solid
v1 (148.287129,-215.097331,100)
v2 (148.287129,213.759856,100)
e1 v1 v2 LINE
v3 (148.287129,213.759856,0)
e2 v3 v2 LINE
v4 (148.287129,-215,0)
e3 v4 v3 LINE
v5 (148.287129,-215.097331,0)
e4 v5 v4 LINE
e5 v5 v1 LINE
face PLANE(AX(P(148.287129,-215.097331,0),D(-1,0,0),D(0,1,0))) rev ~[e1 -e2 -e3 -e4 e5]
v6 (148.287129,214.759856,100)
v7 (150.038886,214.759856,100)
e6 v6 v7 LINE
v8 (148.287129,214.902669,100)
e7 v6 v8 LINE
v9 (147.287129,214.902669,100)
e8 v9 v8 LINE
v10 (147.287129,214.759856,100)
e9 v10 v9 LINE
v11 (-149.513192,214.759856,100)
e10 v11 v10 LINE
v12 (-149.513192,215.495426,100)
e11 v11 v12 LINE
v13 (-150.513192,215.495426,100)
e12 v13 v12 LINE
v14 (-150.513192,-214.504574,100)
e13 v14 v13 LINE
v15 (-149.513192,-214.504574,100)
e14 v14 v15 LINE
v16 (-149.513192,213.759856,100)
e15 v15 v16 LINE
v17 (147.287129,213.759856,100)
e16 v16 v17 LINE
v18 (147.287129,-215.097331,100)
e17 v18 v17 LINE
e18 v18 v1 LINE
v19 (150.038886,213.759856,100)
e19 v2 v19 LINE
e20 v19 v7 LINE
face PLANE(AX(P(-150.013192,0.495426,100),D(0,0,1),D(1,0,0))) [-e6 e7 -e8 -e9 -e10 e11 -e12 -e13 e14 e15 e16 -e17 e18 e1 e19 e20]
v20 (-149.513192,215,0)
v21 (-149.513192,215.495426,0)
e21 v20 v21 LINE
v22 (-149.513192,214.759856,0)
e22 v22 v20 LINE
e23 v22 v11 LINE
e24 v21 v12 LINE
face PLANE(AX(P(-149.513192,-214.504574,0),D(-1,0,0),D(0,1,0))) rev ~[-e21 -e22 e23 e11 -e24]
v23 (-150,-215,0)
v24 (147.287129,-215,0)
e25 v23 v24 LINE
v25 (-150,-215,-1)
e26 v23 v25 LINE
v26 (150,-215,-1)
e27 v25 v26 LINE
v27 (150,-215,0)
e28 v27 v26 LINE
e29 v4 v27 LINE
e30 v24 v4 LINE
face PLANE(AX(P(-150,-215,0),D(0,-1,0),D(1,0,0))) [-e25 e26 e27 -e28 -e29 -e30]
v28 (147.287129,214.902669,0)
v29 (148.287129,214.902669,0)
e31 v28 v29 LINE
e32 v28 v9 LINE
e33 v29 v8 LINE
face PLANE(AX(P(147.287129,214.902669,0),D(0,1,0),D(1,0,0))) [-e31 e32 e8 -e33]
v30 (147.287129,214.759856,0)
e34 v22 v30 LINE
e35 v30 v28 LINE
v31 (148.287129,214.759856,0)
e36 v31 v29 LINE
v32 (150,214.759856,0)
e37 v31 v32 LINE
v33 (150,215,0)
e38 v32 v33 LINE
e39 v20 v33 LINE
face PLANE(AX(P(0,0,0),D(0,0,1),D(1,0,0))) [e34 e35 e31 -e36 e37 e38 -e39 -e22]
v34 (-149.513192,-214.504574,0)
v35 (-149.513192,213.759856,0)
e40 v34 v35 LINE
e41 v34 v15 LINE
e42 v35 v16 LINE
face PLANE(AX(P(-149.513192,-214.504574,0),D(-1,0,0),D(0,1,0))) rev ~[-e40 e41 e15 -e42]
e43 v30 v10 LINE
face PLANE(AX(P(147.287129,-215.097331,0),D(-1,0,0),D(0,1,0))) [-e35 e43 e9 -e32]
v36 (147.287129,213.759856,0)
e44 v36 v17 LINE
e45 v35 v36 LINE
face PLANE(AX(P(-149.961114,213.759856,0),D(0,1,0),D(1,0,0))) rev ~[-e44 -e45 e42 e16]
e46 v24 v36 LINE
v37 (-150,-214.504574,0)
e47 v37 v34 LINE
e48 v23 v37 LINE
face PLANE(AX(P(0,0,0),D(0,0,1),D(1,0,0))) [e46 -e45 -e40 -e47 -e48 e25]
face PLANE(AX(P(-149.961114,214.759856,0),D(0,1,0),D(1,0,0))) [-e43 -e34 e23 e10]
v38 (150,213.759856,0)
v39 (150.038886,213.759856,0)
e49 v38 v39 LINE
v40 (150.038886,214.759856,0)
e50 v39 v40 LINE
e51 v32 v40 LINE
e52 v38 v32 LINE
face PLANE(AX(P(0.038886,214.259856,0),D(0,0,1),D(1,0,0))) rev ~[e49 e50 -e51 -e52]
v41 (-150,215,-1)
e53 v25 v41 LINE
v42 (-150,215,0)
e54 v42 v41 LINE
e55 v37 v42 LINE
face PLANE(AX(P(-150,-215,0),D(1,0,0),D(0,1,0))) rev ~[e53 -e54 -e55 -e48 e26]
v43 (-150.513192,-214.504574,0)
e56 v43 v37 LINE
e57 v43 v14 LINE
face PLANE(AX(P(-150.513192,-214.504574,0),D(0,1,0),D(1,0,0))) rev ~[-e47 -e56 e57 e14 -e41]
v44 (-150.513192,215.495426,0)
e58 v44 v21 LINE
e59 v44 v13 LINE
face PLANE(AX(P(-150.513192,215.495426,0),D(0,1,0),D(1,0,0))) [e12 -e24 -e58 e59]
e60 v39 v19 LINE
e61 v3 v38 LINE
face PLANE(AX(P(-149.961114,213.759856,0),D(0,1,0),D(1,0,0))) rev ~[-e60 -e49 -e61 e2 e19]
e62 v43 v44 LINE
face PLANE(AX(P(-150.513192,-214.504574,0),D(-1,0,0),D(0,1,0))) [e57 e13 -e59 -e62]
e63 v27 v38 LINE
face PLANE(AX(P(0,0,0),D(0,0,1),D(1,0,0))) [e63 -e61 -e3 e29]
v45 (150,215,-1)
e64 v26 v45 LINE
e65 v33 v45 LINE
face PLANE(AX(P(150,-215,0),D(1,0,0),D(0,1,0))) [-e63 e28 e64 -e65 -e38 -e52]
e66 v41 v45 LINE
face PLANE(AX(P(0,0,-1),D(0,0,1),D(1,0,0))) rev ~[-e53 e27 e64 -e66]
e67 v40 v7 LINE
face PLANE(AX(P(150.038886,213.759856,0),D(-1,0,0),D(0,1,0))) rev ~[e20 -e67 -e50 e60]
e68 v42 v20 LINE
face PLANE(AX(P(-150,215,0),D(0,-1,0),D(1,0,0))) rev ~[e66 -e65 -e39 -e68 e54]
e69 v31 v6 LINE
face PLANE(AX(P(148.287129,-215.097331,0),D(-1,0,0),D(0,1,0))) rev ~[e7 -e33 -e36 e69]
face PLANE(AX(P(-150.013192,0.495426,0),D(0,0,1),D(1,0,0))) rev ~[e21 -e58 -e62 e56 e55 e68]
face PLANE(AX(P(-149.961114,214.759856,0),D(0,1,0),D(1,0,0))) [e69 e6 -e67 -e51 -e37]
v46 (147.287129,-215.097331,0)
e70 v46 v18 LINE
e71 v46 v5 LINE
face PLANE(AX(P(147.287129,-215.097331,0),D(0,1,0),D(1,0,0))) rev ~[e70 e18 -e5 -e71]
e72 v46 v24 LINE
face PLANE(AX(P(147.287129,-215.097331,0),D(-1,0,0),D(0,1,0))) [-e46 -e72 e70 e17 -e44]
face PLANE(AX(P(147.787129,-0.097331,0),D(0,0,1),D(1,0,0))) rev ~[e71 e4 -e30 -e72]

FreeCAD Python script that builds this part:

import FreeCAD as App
import Part
import Sketcher

V = App.Vector
Q = App.Units.Quantity


def add_polygon(sketch, points):
    """Adds a closed chain of lines whose ends are joined by coincident constraints."""
    first, n = sketch.GeometryCount, len(points)
    for a, b in zip(points, points[1:] + points[:1]):
        sketch.addGeometry(Part.LineSegment(App.Vector(*a, 0), App.Vector(*b, 0)), False)
    for i in range(n):
        sketch.addConstraint(Sketcher.Constraint("Coincident", first + i, 2, first + (i + 1) % n, 1))

doc = App.newDocument("Part")
body = doc.addObject("PartDesign::Body", "Body")

# Sketch on XY plane
sketch1 = body.newObject("Sketcher::SketchObject", "Sketch")
sketch1.AttachmentSupport = (doc.getObject("XY_Plane"), [""])
sketch1.MapMode = "FlatFace"
add_polygon(sketch1, [(-150, 215), (-150, -215), (150, -215), (150, 215)])  # lines 0-3
sketch1.addConstraint(Sketcher.Constraint("Vertical", 0))
sketch1.addConstraint(Sketcher.Constraint("Horizontal", 1))
sketch1.addConstraint(Sketcher.Constraint("Vertical", 2))
sketch1.addConstraint(Sketcher.Constraint("Horizontal", 3))
sketch1.addConstraint(Sketcher.Constraint("Symmetric", 0, 2, 2, 2, -1, 1))
sketch1.addConstraint(Sketcher.Constraint("DistanceX", 1, 1, 1, 2, Q("300 mm")))
sketch1.addConstraint(Sketcher.Constraint("DistanceY", 0, 2, 0, 1, Q("430 mm")))
pad1 = body.newObject("PartDesign::Pad", "Pad")
pad1.Profile = sketch1
pad1.Length = 1
pad1.Reversed = True

# Sketch on XY plane
sketch2 = body.newObject("Sketcher::SketchObject", "Sketch001")
sketch2.AttachmentSupport = (doc.getObject("XY_Plane"), [""])
sketch2.MapMode = "FlatFace"
add_polygon(sketch2, [(-150, 214.8), (-150, 213.8), (150, 213.8), (150, 214.8)])  # lines 0-3
sketch2.addConstraint(Sketcher.Constraint("Vertical", 0))
sketch2.addConstraint(Sketcher.Constraint("Horizontal", 1))
sketch2.addConstraint(Sketcher.Constraint("Vertical", 2))
sketch2.addConstraint(Sketcher.Constraint("Horizontal", 3))
sketch2.addConstraint(Sketcher.Constraint("DistanceX", 1, 1, 1, 2, Q("300 mm")))
sketch2.addConstraint(Sketcher.Constraint("DistanceY", 0, 2, 0, 1, Q("1 mm")))
sketch2.addConstraint(Sketcher.Constraint("DistanceX", 0, 2, -1, 1, Q("149.961114 mm")))
sketch2.addConstraint(Sketcher.Constraint("DistanceY", -1, 1, 0, 2, Q("213.759856 mm")))
pad2 = body.newObject("PartDesign::Pad", "Pad001")
pad2.Profile = sketch2
pad2.Length = 100

# Sketch on XY plane
sketch3 = body.newObject("Sketcher::SketchObject", "Sketch002")
sketch3.AttachmentSupport = (doc.getObject("XY_Plane"), [""])
sketch3.MapMode = "FlatFace"
add_polygon(sketch3, [(147.3, 214.9), (147.3, -215.1), (148.3, -215.1), (148.3, 214.9)])  # lines 0-3
sketch3.addConstraint(Sketcher.Constraint("Vertical", 0))
sketch3.addConstraint(Sketcher.Constraint("Horizontal", 1))
sketch3.addConstraint(Sketcher.Constraint("Vertical", 2))
sketch3.addConstraint(Sketcher.Constraint("Horizontal", 3))
sketch3.addConstraint(Sketcher.Constraint("DistanceX", 1, 1, 1, 2, Q("1 mm")))
sketch3.addConstraint(Sketcher.Constraint("DistanceY", 0, 2, 0, 1, Q("430 mm")))
sketch3.addConstraint(Sketcher.Constraint("DistanceX", -1, 1, 0, 2, Q("147.287129 mm")))
sketch3.addConstraint(Sketcher.Constraint("DistanceY", 0, 2, -1, 1, Q("215.097331 mm")))
pad3 = body.newObject("PartDesign::Pad", "Pad002")
pad3.Profile = sketch3
pad3.Length = 100

# Sketch on XY plane
sketch4 = body.newObject("Sketcher::SketchObject", "Sketch003")
sketch4.AttachmentSupport = (doc.getObject("XY_Plane"), [""])
sketch4.MapMode = "FlatFace"
add_polygon(sketch4, [(-150.5, 215.5), (-150.5, -214.5), (-149.5, -214.5), (-149.5, 215.5)])  # lines 0-3
sketch4.addConstraint(Sketcher.Constraint("Vertical", 0))
sketch4.addConstraint(Sketcher.Constraint("Horizontal", 1))
sketch4.addConstraint(Sketcher.Constraint("Vertical", 2))
sketch4.addConstraint(Sketcher.Constraint("Horizontal", 3))
sketch4.addConstraint(Sketcher.Constraint("DistanceX", 1, 1, 1, 2, Q("1 mm")))
sketch4.addConstraint(Sketcher.Constraint("DistanceY", 0, 2, 0, 1, Q("430 mm")))
sketch4.addConstraint(Sketcher.Constraint("DistanceX", 0, 2, -1, 1, Q("150.513192 mm")))
sketch4.addConstraint(Sketcher.Constraint("DistanceY", 0, 2, -1, 1, Q("214.504574 mm")))
pad4 = body.newObject("PartDesign::Pad", "Pad003")
pad4.Profile = sketch4
pad4.Length = 100

doc.recompute()
